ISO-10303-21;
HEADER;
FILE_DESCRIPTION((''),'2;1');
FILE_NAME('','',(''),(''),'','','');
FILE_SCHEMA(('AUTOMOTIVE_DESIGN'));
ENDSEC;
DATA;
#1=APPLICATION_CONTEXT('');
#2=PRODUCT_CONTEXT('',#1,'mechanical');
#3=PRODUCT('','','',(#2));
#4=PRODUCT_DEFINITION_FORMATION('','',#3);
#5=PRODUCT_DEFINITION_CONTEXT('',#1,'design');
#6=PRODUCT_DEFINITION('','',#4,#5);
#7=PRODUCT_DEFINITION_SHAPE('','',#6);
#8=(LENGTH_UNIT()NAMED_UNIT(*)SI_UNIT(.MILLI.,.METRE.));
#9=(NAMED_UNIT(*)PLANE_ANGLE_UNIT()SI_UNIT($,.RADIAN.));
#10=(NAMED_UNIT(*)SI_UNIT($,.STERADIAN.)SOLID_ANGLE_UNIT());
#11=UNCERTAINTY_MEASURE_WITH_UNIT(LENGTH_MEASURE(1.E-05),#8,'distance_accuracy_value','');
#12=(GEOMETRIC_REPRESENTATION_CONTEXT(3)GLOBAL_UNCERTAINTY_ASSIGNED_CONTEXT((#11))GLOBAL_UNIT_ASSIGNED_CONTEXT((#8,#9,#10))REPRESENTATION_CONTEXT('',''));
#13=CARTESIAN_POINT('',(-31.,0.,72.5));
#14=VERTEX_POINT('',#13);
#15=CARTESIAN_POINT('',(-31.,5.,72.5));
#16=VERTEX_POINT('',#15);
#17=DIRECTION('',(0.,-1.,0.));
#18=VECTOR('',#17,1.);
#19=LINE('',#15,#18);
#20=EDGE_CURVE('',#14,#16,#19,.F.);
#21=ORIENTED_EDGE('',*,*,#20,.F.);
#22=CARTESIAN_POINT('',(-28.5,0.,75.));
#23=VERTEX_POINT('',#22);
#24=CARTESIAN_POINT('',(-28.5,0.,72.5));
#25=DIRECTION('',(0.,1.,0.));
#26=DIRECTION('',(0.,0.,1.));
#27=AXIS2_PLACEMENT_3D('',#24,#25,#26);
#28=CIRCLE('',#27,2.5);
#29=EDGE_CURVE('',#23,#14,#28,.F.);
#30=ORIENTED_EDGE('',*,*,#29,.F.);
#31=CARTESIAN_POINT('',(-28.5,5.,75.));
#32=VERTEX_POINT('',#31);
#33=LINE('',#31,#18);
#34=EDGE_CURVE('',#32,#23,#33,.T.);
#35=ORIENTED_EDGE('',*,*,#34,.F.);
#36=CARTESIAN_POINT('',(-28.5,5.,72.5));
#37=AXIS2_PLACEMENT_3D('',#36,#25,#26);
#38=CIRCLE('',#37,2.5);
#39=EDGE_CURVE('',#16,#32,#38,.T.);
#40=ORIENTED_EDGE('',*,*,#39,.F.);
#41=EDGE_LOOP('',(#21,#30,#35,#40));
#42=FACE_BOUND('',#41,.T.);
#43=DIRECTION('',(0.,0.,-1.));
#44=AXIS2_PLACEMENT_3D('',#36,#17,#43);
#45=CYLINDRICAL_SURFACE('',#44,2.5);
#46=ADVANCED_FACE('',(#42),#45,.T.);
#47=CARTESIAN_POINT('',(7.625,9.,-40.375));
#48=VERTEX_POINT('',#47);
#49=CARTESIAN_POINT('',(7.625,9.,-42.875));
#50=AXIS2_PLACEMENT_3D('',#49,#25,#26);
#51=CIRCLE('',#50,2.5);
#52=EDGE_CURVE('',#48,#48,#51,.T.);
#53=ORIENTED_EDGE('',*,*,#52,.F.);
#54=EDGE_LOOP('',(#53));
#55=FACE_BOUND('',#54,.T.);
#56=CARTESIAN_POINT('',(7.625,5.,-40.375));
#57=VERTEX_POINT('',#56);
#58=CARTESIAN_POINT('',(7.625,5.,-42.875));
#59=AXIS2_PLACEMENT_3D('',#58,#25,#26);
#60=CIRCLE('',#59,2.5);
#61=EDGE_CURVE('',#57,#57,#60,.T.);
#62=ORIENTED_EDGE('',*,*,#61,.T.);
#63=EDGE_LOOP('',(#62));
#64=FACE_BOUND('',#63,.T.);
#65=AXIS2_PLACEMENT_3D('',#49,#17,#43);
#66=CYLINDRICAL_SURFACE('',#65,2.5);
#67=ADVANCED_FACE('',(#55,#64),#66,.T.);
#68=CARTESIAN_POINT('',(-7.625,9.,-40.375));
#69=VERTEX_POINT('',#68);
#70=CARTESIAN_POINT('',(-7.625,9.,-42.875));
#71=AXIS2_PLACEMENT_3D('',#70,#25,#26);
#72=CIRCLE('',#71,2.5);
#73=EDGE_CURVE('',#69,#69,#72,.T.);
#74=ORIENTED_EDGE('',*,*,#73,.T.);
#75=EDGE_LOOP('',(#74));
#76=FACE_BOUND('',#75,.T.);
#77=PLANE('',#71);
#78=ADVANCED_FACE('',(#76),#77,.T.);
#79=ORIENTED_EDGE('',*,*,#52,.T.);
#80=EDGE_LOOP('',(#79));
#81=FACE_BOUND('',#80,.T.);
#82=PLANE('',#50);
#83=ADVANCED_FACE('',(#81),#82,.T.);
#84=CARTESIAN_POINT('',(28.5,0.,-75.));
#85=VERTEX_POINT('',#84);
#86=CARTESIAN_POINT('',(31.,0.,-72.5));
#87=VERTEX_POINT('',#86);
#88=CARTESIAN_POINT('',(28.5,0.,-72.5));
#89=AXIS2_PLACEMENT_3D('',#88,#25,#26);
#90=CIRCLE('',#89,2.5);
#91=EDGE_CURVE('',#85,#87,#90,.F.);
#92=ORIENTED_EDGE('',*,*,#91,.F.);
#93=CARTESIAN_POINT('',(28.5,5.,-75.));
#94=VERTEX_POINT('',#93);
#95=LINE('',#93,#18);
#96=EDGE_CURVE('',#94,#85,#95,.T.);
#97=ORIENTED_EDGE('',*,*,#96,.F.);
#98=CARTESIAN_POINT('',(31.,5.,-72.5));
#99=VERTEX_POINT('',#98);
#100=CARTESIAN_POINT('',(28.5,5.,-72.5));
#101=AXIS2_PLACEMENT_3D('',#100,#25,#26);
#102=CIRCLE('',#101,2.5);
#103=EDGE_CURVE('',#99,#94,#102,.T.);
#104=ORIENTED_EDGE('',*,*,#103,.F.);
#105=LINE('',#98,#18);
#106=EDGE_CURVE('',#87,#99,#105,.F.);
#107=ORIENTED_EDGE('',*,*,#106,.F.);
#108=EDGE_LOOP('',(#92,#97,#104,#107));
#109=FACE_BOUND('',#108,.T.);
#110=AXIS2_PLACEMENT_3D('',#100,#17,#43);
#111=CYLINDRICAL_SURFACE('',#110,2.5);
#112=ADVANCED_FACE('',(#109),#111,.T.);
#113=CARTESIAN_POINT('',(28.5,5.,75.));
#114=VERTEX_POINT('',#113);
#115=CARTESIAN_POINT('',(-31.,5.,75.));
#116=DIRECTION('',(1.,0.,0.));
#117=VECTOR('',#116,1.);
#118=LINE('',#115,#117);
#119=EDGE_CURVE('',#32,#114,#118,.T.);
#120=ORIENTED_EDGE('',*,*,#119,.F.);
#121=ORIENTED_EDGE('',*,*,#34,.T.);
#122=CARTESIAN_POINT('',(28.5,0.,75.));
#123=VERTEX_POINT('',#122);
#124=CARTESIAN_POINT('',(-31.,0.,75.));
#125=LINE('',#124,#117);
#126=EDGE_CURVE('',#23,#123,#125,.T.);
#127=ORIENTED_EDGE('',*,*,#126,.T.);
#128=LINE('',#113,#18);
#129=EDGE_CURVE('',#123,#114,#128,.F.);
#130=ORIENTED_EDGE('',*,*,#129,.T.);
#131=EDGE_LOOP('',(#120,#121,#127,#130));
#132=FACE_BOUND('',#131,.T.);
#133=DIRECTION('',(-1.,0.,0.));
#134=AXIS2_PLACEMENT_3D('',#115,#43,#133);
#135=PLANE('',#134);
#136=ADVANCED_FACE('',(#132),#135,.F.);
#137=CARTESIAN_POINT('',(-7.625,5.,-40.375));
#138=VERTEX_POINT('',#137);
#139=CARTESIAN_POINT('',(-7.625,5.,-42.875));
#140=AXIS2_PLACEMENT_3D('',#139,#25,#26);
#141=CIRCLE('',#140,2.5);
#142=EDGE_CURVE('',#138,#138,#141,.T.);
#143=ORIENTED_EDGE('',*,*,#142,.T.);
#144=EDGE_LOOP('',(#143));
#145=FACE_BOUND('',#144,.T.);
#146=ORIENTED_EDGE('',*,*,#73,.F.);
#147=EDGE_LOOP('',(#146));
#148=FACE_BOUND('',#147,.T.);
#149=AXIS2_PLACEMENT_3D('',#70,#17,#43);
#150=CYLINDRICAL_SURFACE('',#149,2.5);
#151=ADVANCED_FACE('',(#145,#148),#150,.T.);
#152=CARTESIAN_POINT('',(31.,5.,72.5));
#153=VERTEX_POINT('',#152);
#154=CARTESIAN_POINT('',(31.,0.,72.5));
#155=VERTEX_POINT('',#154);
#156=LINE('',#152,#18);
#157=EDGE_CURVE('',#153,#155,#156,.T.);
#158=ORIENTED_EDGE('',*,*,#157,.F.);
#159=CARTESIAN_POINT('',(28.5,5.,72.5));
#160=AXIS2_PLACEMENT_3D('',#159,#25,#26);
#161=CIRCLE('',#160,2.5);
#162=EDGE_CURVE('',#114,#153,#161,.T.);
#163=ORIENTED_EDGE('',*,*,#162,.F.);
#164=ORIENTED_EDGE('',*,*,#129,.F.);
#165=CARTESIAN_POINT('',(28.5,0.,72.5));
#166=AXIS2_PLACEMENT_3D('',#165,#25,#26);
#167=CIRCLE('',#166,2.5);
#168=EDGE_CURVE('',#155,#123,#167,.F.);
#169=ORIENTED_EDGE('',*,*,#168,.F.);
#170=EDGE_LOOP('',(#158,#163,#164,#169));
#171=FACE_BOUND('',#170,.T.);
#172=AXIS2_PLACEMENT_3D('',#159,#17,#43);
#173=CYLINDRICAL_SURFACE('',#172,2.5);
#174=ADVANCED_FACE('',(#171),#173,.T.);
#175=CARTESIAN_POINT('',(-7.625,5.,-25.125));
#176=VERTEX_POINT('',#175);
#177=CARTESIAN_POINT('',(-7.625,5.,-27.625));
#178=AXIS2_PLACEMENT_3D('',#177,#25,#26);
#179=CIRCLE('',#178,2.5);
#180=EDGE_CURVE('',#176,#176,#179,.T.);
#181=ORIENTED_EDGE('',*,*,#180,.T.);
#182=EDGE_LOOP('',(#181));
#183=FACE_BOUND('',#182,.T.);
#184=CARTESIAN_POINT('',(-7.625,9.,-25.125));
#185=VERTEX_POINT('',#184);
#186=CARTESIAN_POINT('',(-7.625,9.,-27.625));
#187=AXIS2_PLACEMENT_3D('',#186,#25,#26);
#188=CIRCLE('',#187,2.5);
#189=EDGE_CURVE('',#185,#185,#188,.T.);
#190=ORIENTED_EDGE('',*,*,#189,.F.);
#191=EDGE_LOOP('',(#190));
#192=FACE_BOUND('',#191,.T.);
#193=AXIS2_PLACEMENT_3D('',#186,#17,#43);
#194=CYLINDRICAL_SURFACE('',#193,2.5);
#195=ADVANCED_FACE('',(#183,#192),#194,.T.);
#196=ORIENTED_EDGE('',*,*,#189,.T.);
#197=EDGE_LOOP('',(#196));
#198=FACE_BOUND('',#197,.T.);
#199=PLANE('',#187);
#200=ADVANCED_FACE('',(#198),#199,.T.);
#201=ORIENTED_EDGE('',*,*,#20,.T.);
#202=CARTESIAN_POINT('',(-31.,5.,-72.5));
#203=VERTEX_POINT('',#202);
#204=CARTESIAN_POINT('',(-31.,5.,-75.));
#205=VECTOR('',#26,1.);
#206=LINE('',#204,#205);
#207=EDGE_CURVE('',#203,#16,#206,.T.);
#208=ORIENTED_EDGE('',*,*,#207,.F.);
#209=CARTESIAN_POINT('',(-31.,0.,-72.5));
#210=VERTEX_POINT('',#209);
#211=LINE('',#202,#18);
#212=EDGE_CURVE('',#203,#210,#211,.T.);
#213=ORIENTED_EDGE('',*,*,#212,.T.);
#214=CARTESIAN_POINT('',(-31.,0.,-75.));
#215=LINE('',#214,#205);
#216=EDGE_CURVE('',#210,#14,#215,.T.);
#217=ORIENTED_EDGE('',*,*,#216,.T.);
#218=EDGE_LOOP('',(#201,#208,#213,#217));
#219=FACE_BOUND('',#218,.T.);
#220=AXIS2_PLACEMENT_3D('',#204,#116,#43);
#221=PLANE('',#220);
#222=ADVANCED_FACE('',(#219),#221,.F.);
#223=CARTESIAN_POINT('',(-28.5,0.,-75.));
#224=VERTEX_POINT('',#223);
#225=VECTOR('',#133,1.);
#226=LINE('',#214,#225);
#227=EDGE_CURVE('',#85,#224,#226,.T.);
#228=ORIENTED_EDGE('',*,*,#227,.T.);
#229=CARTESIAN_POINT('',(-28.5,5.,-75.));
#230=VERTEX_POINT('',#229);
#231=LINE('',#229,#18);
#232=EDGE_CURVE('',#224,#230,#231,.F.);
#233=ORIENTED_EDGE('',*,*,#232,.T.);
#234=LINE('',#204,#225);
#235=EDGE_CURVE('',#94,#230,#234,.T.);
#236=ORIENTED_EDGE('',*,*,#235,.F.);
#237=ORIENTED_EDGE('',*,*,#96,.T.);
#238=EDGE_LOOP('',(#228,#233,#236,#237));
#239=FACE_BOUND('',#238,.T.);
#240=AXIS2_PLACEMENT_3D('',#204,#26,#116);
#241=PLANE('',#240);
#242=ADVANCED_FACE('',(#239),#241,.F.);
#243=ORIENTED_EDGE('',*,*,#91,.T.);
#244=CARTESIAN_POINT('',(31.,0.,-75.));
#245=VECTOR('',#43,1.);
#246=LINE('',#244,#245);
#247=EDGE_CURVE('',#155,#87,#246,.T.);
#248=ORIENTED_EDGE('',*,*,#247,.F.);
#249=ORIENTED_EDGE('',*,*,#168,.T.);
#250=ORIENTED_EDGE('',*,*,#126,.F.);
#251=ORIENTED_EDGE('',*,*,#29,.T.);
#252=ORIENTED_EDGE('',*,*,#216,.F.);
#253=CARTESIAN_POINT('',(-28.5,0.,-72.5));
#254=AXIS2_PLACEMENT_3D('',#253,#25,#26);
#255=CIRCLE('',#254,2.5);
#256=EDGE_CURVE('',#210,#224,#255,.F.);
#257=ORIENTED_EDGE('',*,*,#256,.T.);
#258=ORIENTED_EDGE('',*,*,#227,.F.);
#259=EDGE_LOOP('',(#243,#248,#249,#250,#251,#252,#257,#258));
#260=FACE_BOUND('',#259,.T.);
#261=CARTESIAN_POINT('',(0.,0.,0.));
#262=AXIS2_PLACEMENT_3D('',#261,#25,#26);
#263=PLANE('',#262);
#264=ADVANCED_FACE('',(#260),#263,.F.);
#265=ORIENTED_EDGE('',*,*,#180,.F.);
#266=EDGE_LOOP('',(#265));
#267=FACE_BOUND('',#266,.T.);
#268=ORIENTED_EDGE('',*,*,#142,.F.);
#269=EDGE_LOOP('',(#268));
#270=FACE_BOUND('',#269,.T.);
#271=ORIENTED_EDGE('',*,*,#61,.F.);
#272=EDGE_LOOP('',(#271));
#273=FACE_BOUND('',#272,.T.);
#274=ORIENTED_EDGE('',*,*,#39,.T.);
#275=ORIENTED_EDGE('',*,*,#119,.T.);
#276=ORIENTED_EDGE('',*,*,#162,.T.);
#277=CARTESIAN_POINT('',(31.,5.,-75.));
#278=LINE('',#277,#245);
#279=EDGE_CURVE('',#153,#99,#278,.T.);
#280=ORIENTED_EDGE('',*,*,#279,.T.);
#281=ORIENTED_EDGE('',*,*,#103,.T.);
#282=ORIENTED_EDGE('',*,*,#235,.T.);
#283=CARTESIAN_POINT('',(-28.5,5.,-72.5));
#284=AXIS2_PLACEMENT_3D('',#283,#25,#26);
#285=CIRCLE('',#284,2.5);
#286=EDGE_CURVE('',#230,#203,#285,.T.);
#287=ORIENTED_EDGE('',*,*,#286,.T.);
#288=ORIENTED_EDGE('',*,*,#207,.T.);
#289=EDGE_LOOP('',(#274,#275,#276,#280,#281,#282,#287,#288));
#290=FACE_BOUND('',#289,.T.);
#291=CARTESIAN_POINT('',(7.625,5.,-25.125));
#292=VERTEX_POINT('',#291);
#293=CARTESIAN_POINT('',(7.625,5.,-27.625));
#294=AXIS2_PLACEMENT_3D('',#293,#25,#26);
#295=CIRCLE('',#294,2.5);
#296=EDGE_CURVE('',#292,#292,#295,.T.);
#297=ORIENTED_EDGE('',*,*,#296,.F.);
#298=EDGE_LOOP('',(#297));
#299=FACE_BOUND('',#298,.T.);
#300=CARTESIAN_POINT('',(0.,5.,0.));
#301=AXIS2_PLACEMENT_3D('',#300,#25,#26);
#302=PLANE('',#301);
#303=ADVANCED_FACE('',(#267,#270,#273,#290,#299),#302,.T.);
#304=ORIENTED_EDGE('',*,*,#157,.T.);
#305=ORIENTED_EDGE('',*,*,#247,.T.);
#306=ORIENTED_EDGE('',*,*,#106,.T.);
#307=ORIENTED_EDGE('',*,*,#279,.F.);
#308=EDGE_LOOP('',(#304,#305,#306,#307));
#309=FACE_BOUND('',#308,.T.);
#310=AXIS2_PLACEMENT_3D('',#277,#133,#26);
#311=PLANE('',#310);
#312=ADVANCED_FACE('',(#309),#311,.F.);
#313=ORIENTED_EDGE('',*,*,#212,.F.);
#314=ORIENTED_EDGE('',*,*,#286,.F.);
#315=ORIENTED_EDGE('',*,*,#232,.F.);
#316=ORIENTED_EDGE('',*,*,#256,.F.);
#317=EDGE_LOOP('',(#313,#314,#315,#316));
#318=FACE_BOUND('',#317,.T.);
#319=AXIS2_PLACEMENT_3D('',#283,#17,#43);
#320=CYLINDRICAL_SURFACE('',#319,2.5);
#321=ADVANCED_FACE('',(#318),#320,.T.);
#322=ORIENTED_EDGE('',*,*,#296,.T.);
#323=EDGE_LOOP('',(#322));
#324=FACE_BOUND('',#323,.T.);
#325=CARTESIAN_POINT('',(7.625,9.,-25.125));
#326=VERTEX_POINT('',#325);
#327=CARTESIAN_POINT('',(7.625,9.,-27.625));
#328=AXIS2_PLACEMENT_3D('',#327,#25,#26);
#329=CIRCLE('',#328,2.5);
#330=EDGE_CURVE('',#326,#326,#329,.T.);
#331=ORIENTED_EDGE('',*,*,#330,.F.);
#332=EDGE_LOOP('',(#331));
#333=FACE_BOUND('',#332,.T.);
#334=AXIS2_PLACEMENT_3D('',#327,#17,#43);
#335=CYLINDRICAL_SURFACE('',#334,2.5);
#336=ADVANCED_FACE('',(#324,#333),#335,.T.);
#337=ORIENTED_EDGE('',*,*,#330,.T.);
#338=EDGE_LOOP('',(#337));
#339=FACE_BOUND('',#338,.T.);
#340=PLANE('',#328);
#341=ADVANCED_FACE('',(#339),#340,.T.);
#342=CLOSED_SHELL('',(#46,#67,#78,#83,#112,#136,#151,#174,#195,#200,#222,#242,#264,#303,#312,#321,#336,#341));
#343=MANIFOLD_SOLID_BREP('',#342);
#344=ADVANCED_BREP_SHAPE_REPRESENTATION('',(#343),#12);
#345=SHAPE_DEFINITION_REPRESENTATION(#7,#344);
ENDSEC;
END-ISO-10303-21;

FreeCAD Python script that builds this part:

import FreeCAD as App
import Part
import Sketcher
Q = App.Units.Quantity


def edges_at(feature, points):
    """Names of the edges that pass closest to the given points."""
    edges = feature.Shape.Edges
    near = lambda p: min(range(len(edges)), key=lambda i: edges[i].distToShape(Part.Vertex(*p))[0])
    return sorted({f"Edge{near(p) + 1}" for p in points})

doc = App.newDocument("Part")
body = doc.addObject("PartDesign::Body", "Body")

sketch1 = body.newObject("Sketcher::SketchObject", "Sketch")
sketch1.AttachmentSupport = (doc.getObject("XZ_Plane"), [""])
sketch1.MapMode = "FlatFace"
sketch1.addGeometry(Part.LineSegment(App.Vector(-31, -75, 0), App.Vector(-31, 75, 0)), False)
sketch1.addGeometry(Part.LineSegment(App.Vector(-31, 75, 0), App.Vector(31, 75, 0)), False)
sketch1.addGeometry(Part.LineSegment(App.Vector(31, 75, 0), App.Vector(31, -75, 0)), False)
sketch1.addGeometry(Part.LineSegment(App.Vector(31, -75, 0), App.Vector(-31, -75, 0)), False)
sketch1.addConstraint(Sketcher.Constraint("Coincident", 0, 2, 1, 1))
sketch1.addConstraint(Sketcher.Constraint("Coincident", 1, 2, 2, 1))
sketch1.addConstraint(Sketcher.Constraint("Coincident", 2, 2, 3, 1))
sketch1.addConstraint(Sketcher.Constraint("Coincident", 3, 2, 0, 1))
sketch1.addConstraint(Sketcher.Constraint("Vertical", 0))
sketch1.addConstraint(Sketcher.Constraint("Horizontal", 1))
sketch1.addConstraint(Sketcher.Constraint("Vertical", 2))
sketch1.addConstraint(Sketcher.Constraint("Horizontal", 3))
sketch1.addConstraint(Sketcher.Constraint("Symmetric", 0, 2, 2, 2, -1, 1))
sketch1.addConstraint(Sketcher.Constraint("DistanceX", 1, 1, 1, 2, Q("62 mm")))
sketch1.addConstraint(Sketcher.Constraint("DistanceY", 0, 1, 0, 2, Q("150 mm")))
pad1 = body.newObject("PartDesign::Pad", "Pad")
pad1.Profile = sketch1
pad1.Length = 5
pad1.Reversed = True
doc.recompute()

fillet = body.newObject("PartDesign::Fillet", "Fillet")
fillet.Base = (pad1, edges_at(pad1, [
    (31, 2.5, 75),
    (-31, 2.5, 75),
    (-31, 2.5, -75),
    (31, 2.5, -75),
]))
fillet.Radius = 2.5

sketch2 = body.newObject("Sketcher::SketchObject", "Sketch001")
sketch2.AttachmentSupport = (doc.getObject("XZ_Plane"), [""])
sketch2.MapMode = "FlatFace"
sketch2.AttachmentOffset = App.Placement(App.Vector(0, 0, -5), App.Rotation())
sketch2.addGeometry(Part.Circle(App.Vector(-7.6, -42.9, 0), App.Vector(0, 0, 1), 2.5), False)
sketch2.addGeometry(Part.Circle(App.Vector(7.6, -42.9, 0), App.Vector(0, 0, 1), 2.5), False)
sketch2.addGeometry(Part.Circle(App.Vector(7.6, -27.6, 0), App.Vector(0, 0, 1), 2.5), False)
sketch2.addGeometry(Part.Circle(App.Vector(-7.6, -27.6, 0), App.Vector(0, 0, 1), 2.5), False)
sketch2.addConstraint(Sketcher.Constraint("Equal", 0, 1))
sketch2.addConstraint(Sketcher.Constraint("Equal", 1, 2))
sketch2.addConstraint(Sketcher.Constraint("Equal", 2, 3))
sketch2.addConstraint(Sketcher.Constraint("Symmetric", 0, 3, 1, 3, -2))
sketch2.addConstraint(Sketcher.Constraint("Symmetric", 2, 3, 3, 3, -2))
sketch2.addConstraint(Sketcher.Constraint("Vertical", 1, 3, 2, 3))
sketch2.addConstraint(Sketcher.Constraint("Diameter", 0, Q("5 mm")))
sketch2.addConstraint(Sketcher.Constraint("DistanceX", 0, 3, 1, 3, Q("15.25 mm")))
sketch2.addConstraint(Sketcher.Constraint("DistanceY", 1, 3, 2, 3, Q("15.25 mm")))
sketch2.addConstraint(Sketcher.Constraint("DistanceY", 0, 3, -1, 1, Q("42.875 mm")))
pad2 = body.newObject("PartDesign::Pad", "Pad001")
pad2.Profile = sketch2
pad2.Length = 4
pad2.Reversed = True

doc.recompute()
